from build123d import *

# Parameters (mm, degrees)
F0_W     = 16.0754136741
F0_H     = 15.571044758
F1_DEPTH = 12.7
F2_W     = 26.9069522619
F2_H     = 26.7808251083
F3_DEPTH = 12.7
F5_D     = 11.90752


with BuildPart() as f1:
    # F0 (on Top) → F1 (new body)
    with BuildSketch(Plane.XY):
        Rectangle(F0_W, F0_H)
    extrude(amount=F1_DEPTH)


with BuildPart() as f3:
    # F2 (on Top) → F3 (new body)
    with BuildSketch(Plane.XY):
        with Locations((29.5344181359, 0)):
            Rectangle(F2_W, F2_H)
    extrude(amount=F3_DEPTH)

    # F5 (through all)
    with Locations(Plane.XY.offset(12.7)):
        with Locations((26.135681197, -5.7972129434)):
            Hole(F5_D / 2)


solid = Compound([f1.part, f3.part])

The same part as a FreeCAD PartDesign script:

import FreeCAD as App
import Part
import Sketcher
from FreeCAD import Vector
Q = App.Units.Quantity

doc = App.newDocument("Part")
body = doc.addObject("PartDesign::Body", "Body")

sketch1 = doc.addObject("Sketcher::SketchObject", "Sketch")
body.addObject(sketch1)
sketch1.AttachmentSupport = (doc.XY_Plane, [""])
sketch1.MapMode = "FlatFace"
sketch1.addGeometry([
    Part.LineSegment(Vector(-8, 8, 0), Vector(-8, -8, 0)),
    Part.LineSegment(Vector(-8, -8, 0), Vector(8, -8, 0)),
    Part.LineSegment(Vector(8, -8, 0), Vector(8, 8, 0)),
    Part.LineSegment(Vector(8, 8, 0), Vector(-8, 8, 0)),
], False)
sketch1.addConstraint([
    Sketcher.Constraint("Coincident", 0, 2, 1, 1),
    Sketcher.Constraint("Coincident", 1, 2, 2, 1),
    Sketcher.Constraint("Coincident", 2, 2, 3, 1),
    Sketcher.Constraint("Coincident", 3, 2, 0, 1),
    Sketcher.Constraint("Vertical", 0),
    Sketcher.Constraint("Horizontal", 1),
    Sketcher.Constraint("Vertical", 2),
    Sketcher.Constraint("Horizontal", 3),
    Sketcher.Constraint("Symmetric", 0, 2, 2, 2, -1, 1),
    Sketcher.Constraint("DistanceX", 1, 1, 1, 2, 16.075414),
    Sketcher.Constraint("DistanceY", 0, 2, 0, 1, 15.571045),
])
pad1 = doc.addObject("PartDesign::Pad", "Pad")
body.addObject(pad1)
pad1.Profile = sketch1
pad1.Length = Q("0.5 in")
body2 = doc.addObject("PartDesign::Body", "Body001")

sketch2 = doc.addObject("Sketcher::SketchObject", "Sketch001")
body2.addObject(sketch2)
sketch2.AttachmentSupport = (doc.getObject("XY_Plane001"), [""])
sketch2.MapMode = "FlatFace"
sketch2.addGeometry([
    Part.LineSegment(Vector(16, 13, 0), Vector(16, -13, 0)),
    Part.LineSegment(Vector(16, -13, 0), Vector(43, -13, 0)),
    Part.LineSegment(Vector(43, -13, 0), Vector(43, 13, 0)),
    Part.LineSegment(Vector(43, 13, 0), Vector(16, 13, 0)),
], False)
sketch2.addConstraint([
    Sketcher.Constraint("Coincident", 0, 2, 1, 1),
    Sketcher.Constraint("Coincident", 1, 2, 2, 1),
    Sketcher.Constraint("Coincident", 2, 2, 3, 1),
    Sketcher.Constraint("Coincident", 3, 2, 0, 1),
    Sketcher.Constraint("Vertical", 0),
    Sketcher.Constraint("Horizontal", 1),
    Sketcher.Constraint("Vertical", 2),
    Sketcher.Constraint("Horizontal", 3),
    Sketcher.Constraint("DistanceX", 1, 1, 1, 2, 26.906952),
    Sketcher.Constraint("DistanceY", 0, 2, 0, 1, 26.780825),
    Sketcher.Constraint("DistanceX", -1, 1, 0, 2, 16.080942),
    Sketcher.Constraint("DistanceY", 0, 2, -1, 1, 13.390413),
])
pad2 = doc.addObject("PartDesign::Pad", "Pad001")
body2.addObject(pad2)
pad2.Profile = sketch2
pad2.Length = Q("0.5 in")

sketch3 = doc.addObject("Sketcher::SketchObject", "Sketch002")
body2.addObject(sketch3)
sketch3.AttachmentSupport = (doc.getObject("XY_Plane001"), [""])
sketch3.MapMode = "FlatFace"
sketch3.AttachmentOffset = App.Placement(Vector(0, 0, 0.5 * 25.4), App.Rotation())
sketch3.addGeometry(Part.Circle(Vector(26, -6, 0), Vector(0, 0, 1), 6), False)
sketch3.addConstraint([
    Sketcher.Constraint("Diameter", 0, Q("0.4688 in")),
    Sketcher.Constraint("DistanceX", -1, 1, 0, 3, 26.135681),
    Sketcher.Constraint("DistanceY", 0, 3, -1, 1, 5.797213),
])
doc.recompute()
hole = doc.addObject("PartDesign::Hole", "Hole")
body2.addObject(hole)
hole.Profile = sketch3
hole.ThreadType = "None"
hole.Diameter = Q("0.4688 in")
hole.DepthType = "ThroughAll"

doc.recompute()
